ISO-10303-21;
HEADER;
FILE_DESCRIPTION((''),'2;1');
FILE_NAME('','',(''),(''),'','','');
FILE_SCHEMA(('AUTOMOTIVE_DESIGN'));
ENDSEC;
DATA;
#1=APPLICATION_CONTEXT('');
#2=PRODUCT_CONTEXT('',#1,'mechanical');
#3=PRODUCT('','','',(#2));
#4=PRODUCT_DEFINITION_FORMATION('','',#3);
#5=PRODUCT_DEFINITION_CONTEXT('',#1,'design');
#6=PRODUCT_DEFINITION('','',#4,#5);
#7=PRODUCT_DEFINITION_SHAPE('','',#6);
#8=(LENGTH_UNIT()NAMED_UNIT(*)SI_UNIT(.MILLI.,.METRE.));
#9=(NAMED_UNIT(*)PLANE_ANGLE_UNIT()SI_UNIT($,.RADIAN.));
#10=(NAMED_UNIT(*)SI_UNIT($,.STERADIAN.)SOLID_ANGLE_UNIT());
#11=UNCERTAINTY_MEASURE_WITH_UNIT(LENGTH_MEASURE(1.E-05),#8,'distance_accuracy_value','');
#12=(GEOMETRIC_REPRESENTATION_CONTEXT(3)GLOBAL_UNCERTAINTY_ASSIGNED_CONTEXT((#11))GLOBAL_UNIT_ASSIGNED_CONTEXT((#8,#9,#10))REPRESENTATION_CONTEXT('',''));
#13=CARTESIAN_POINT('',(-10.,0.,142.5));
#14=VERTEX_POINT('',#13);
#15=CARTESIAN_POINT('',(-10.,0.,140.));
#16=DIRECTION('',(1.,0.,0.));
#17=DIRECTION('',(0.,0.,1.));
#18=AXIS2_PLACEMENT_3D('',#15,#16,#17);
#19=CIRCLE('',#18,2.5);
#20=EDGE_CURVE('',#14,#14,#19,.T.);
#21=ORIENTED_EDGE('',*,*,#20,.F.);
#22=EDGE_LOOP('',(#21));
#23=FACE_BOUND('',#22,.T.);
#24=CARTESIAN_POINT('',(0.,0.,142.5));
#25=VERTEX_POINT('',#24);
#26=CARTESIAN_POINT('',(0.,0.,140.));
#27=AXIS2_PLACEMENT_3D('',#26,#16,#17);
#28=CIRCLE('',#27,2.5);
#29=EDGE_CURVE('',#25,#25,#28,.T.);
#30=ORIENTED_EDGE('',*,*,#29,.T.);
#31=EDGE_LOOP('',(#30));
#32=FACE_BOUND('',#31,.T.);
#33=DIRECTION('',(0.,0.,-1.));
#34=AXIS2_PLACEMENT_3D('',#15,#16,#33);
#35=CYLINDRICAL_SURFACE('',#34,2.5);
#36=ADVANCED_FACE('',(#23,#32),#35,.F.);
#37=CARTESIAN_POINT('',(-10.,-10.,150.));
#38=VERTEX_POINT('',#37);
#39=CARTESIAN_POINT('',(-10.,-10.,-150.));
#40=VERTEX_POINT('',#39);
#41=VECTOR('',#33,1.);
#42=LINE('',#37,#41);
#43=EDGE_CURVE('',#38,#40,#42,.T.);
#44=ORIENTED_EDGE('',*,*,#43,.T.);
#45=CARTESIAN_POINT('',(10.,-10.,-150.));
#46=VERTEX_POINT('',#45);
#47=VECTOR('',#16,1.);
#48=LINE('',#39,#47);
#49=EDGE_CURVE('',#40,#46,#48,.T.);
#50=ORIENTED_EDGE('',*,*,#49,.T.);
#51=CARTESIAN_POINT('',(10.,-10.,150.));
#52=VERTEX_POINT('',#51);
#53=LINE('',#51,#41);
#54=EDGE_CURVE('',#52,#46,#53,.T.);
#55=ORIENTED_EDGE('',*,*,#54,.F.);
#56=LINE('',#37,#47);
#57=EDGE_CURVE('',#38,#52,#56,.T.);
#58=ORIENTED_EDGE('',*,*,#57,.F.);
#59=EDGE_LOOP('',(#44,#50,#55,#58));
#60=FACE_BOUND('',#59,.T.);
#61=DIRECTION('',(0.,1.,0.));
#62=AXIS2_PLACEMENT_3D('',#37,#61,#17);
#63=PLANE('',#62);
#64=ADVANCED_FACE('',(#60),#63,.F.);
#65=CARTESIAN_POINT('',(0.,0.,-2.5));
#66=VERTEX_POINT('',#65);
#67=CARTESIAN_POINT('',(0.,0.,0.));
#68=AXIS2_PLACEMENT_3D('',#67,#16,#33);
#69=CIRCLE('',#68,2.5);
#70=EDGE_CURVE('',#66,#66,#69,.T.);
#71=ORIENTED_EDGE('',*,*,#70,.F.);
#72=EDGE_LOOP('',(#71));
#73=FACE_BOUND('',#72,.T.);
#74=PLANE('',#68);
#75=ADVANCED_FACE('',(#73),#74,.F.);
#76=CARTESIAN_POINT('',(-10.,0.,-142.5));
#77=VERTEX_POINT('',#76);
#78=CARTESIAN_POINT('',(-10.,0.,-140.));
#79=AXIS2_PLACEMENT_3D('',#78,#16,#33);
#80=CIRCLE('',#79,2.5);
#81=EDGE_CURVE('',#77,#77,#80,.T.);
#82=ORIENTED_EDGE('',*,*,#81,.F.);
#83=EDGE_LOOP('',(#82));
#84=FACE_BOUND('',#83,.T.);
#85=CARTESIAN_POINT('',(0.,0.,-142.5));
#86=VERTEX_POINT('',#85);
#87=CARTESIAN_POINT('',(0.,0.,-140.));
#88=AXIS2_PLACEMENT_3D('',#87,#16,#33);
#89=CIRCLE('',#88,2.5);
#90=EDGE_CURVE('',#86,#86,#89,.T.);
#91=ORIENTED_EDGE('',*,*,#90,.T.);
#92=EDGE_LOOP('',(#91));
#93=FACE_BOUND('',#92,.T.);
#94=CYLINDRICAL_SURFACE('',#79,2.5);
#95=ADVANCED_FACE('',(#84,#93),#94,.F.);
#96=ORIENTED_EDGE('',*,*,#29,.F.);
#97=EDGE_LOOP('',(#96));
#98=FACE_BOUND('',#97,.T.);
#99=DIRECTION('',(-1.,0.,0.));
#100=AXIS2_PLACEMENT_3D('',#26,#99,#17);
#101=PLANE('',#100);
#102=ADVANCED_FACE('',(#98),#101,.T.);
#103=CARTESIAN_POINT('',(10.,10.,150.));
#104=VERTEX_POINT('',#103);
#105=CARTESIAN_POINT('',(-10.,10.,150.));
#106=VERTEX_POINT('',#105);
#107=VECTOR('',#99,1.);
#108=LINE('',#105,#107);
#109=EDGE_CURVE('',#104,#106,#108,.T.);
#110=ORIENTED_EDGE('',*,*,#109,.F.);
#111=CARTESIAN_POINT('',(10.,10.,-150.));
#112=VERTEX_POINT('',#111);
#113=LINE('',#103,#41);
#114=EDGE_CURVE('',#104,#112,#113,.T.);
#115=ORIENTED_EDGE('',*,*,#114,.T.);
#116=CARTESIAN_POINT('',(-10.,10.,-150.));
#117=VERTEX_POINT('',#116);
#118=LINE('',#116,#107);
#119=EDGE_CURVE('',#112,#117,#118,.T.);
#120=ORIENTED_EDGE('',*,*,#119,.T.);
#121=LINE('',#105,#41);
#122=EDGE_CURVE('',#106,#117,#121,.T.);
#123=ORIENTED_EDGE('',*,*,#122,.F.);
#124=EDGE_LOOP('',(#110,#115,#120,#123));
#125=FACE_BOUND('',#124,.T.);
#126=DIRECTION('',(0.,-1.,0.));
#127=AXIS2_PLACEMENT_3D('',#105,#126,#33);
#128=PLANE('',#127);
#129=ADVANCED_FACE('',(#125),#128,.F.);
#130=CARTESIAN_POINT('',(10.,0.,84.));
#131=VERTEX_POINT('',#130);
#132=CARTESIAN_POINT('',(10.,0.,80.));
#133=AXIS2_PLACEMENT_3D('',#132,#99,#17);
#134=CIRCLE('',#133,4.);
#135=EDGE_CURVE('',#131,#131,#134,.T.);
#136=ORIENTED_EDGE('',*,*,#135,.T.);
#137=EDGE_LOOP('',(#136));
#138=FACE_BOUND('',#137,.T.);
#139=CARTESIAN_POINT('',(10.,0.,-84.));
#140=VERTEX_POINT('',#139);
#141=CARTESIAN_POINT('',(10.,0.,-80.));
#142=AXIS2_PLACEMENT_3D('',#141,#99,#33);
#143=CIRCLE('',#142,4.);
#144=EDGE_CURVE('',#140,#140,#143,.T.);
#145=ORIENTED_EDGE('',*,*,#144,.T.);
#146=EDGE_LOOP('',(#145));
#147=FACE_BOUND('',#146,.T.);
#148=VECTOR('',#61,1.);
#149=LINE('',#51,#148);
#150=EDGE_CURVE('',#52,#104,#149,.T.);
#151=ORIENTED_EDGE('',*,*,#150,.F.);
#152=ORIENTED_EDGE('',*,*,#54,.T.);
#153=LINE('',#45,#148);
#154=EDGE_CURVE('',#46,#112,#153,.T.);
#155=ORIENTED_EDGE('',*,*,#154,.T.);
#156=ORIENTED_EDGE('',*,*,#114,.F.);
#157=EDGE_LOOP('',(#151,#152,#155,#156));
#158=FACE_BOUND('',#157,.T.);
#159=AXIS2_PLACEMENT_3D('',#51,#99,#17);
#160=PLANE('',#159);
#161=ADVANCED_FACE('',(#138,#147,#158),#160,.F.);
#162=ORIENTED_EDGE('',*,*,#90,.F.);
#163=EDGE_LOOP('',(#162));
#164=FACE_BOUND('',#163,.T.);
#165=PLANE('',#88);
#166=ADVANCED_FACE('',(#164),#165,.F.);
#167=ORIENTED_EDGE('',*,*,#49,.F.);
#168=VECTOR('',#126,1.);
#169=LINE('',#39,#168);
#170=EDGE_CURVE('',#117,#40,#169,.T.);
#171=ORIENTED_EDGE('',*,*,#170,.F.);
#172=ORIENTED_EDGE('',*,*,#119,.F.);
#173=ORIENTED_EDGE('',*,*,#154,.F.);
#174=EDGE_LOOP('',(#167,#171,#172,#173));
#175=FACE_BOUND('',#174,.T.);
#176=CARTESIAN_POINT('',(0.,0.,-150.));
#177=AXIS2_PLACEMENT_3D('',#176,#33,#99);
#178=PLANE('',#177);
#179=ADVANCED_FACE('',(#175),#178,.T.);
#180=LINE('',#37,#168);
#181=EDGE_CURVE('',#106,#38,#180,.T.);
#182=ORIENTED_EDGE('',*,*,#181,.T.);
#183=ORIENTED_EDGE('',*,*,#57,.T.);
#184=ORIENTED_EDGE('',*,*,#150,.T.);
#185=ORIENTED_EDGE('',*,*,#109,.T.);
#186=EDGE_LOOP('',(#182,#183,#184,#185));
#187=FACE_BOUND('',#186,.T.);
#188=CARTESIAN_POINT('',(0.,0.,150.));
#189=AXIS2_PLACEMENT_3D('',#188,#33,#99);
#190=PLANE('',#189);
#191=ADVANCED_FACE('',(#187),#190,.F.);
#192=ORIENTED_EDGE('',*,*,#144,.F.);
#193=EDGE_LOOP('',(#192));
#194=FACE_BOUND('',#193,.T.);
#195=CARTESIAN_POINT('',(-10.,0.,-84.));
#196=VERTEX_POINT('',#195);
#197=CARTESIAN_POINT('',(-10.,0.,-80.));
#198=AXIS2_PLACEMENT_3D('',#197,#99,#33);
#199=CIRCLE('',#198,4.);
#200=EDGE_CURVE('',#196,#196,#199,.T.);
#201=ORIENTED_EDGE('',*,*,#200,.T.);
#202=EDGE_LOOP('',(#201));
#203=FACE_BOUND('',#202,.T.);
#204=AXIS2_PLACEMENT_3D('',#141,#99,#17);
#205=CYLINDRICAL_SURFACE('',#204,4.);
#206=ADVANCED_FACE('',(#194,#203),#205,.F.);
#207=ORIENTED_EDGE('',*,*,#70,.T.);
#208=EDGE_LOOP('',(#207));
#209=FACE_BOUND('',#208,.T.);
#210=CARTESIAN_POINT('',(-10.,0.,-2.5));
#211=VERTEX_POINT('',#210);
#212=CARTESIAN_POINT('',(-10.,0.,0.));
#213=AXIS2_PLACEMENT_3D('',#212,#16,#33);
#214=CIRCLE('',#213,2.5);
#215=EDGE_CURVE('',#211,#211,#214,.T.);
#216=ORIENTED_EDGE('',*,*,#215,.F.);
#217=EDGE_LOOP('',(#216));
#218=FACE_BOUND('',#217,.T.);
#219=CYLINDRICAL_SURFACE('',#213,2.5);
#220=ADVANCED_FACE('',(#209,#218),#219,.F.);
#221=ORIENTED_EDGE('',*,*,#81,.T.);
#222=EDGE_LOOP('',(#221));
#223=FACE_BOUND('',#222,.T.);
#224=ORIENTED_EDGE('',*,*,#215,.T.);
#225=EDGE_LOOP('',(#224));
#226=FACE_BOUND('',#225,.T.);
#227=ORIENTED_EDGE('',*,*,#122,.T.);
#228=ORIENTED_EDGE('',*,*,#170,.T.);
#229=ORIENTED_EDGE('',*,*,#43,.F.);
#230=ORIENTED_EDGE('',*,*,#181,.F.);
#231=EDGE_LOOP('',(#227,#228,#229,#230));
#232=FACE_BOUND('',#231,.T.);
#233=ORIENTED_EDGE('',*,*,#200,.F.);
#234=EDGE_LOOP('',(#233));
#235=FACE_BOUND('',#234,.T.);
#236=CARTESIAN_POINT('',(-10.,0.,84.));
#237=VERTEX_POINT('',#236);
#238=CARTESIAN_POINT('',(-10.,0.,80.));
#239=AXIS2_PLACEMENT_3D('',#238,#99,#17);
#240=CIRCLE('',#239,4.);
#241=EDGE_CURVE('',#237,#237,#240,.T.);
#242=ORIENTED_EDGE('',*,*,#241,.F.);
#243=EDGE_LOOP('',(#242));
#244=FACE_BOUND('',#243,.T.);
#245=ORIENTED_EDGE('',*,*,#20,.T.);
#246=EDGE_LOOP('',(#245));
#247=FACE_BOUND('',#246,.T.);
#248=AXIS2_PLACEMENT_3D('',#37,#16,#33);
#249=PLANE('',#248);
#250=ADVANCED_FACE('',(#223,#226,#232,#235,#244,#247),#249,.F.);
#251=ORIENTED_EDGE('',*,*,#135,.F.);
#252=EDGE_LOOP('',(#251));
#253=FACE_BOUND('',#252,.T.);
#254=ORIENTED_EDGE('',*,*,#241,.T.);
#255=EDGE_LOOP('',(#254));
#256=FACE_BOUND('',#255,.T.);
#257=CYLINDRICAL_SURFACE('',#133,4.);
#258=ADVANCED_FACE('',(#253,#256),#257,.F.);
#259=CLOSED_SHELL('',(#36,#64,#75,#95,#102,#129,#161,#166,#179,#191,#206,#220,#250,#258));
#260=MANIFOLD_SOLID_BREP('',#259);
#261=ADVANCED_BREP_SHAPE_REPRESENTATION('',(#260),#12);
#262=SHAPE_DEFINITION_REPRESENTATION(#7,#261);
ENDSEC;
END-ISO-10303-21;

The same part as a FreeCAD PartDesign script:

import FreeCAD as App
import Part
import Sketcher
from FreeCAD import Vector


def add_polygon(sketch, points):
    """Adds a closed chain of lines whose ends are joined by coincident constraints."""
    first, n = sketch.GeometryCount, len(points)
    for a, b in zip(points, points[1:] + points[:1]):
        sketch.addGeometry(Part.LineSegment(App.Vector(*a, 0), App.Vector(*b, 0)), False)
    for i in range(n):
        sketch.addConstraint(Sketcher.Constraint("Coincident", first + i, 2, first + (i + 1) % n, 1))

doc = App.newDocument("Part")
body = doc.addObject("PartDesign::Body", "Body")

# Sketch on XY plane
sketch1 = body.newObject("Sketcher::SketchObject", "Sketch")
sketch1.AttachmentSupport = (doc.getObject("XY_Plane"), [""])
sketch1.MapMode = "FlatFace"
add_polygon(sketch1, [(-10, 10), (-10, -10), (10, -10), (10, 10)])  # lines 0-3
sketch1.addConstraint([
    Sketcher.Constraint("Vertical", 0),
    Sketcher.Constraint("Horizontal", 1),
    Sketcher.Constraint("Vertical", 2),
    Sketcher.Constraint("Horizontal", 3),
    Sketcher.Constraint("Symmetric", 0, 2, 2, 2, -1, 1),
    Sketcher.Constraint("Equal", 3, 0),
    Sketcher.Constraint("DistanceX", 1, 1, 1, 2, 20.0),
])
pad1 = body.newObject("PartDesign::Pad", "Pad")
pad1.Profile = sketch1
pad1.Length = 300
pad1.Midplane = True

# Sketch on YZ plane
sketch2 = body.newObject("Sketcher::SketchObject", "Sketch001")
sketch2.AttachmentSupport = (doc.getObject("YZ_Plane"), [""])
sketch2.MapMode = "FlatFace"
sketch2.addGeometry([
    Part.Circle(Vector(0, 0, 0), Vector(0, 0, 1), 2.5),
    Part.Circle(Vector(0, -140, 0), Vector(0, 0, 1), 2.5),
    Part.Circle(Vector(0, 140, 0), Vector(0, 0, 1), 2.5),
], False)
sketch2.addConstraint([
    Sketcher.Constraint("Coincident", 0, 3, -1, 1),
    Sketcher.Constraint("Equal", 0, 1),
    Sketcher.Constraint("Equal", 1, 2),
    Sketcher.Constraint("Symmetric", 1, 3, 2, 3, -1, 1),
    Sketcher.Constraint("PointOnObject", 1, 3, -2),
    Sketcher.Constraint("Diameter", 0, 5.0),
    Sketcher.Constraint("DistanceY", 1, 3, -1, 1, 140.0),
])
pocket1 = body.newObject("PartDesign::Pocket", "Pocket")
pocket1.Profile = sketch2
pocket1.Type = "ThroughAll"

# Sketch on YZ plane
sketch3 = body.newObject("Sketcher::SketchObject", "Sketch002")
sketch3.AttachmentSupport = (doc.getObject("YZ_Plane"), [""])
sketch3.MapMode = "FlatFace"
sketch3.AttachmentOffset = App.Placement(Vector(0, 0, -10), App.Rotation())
sketch3.addGeometry([
    Part.Circle(Vector(0, 80, 0), Vector(0, 0, 1), 4),
    Part.Circle(Vector(0, -80, 0), Vector(0, 0, 1), 4),
], False)
sketch3.addConstraint([
    Sketcher.Constraint("Equal", 0, 1),
    Sketcher.Constraint("Symmetric", 0, 3, 1, 3, -1, 1),
    Sketcher.Constraint("PointOnObject", 0, 3, -2),
    Sketcher.Constraint("Diameter", 0, 8.0),
    Sketcher.Constraint("DistanceY", -1, 1, 0, 3, 80.0),
])
pocket2 = body.newObject("PartDesign::Pocket", "Pocket001")
pocket2.Profile = sketch3
pocket2.Type = "ThroughAll"
pocket2.Reversed = True

doc.recompute()
